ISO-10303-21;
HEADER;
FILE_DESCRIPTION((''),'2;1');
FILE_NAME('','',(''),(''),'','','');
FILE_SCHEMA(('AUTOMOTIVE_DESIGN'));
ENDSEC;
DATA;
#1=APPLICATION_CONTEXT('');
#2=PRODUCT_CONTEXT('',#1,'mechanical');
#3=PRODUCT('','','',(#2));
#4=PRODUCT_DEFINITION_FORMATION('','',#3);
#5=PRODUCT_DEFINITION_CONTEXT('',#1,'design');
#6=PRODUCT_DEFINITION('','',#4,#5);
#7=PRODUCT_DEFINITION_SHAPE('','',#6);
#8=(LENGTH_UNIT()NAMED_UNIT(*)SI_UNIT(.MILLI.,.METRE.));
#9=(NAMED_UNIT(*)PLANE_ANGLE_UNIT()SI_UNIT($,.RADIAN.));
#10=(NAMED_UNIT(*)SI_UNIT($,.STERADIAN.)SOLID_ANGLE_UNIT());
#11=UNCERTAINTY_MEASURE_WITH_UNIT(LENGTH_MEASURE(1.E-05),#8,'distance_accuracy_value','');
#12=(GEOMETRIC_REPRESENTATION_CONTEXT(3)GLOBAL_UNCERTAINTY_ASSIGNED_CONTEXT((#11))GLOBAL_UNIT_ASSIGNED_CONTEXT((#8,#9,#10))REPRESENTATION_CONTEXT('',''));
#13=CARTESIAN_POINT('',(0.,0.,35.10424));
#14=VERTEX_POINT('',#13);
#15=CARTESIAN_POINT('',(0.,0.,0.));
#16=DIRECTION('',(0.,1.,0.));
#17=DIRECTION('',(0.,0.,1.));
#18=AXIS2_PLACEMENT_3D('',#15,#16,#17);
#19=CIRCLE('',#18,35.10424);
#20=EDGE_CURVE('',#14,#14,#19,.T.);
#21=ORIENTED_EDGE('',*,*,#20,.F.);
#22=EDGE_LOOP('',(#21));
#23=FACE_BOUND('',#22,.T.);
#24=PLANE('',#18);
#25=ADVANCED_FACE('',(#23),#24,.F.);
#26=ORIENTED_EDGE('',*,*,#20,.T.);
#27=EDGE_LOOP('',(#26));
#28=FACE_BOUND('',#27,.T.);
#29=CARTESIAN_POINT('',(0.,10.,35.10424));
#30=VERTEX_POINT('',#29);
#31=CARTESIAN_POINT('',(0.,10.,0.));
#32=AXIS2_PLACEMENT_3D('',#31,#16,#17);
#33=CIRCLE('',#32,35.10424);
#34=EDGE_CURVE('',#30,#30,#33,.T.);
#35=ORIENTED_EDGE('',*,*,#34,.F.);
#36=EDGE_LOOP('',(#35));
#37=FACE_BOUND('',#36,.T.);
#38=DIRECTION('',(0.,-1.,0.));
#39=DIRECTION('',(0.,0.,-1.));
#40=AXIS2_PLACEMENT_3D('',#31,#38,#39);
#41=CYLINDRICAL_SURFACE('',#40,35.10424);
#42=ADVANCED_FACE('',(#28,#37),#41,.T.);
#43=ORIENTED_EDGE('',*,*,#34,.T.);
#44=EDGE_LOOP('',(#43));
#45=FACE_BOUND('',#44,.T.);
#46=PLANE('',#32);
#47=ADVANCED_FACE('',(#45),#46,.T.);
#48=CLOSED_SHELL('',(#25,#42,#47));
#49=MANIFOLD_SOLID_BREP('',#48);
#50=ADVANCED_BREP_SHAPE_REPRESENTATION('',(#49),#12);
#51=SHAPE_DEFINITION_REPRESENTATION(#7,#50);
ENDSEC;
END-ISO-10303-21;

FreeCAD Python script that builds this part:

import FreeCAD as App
import Part
import Sketcher

doc = App.newDocument("Part")
body = doc.addObject("PartDesign::Body", "Body")

sketch1 = doc.addObject("Sketcher::SketchObject", "Sketch")
body.addObject(sketch1)
sketch1.AttachmentSupport = (doc.XZ_Plane, [""])
sketch1.MapMode = "FlatFace"
sketch1.addGeometry(Part.Circle(App.Vector(0, 0, 0), App.Vector(0, 0, 1), 35), False)
sketch1.addConstraint(Sketcher.Constraint("Coincident", 0, 3, -1, 1))
sketch1.addConstraint(Sketcher.Constraint("Diameter", 0, 70.208479))
pad1 = doc.addObject("PartDesign::Pad", "Pad")
body.addObject(pad1)
pad1.Profile = sketch1
pad1.Length = 10
pad1.Reversed = True

doc.recompute()
